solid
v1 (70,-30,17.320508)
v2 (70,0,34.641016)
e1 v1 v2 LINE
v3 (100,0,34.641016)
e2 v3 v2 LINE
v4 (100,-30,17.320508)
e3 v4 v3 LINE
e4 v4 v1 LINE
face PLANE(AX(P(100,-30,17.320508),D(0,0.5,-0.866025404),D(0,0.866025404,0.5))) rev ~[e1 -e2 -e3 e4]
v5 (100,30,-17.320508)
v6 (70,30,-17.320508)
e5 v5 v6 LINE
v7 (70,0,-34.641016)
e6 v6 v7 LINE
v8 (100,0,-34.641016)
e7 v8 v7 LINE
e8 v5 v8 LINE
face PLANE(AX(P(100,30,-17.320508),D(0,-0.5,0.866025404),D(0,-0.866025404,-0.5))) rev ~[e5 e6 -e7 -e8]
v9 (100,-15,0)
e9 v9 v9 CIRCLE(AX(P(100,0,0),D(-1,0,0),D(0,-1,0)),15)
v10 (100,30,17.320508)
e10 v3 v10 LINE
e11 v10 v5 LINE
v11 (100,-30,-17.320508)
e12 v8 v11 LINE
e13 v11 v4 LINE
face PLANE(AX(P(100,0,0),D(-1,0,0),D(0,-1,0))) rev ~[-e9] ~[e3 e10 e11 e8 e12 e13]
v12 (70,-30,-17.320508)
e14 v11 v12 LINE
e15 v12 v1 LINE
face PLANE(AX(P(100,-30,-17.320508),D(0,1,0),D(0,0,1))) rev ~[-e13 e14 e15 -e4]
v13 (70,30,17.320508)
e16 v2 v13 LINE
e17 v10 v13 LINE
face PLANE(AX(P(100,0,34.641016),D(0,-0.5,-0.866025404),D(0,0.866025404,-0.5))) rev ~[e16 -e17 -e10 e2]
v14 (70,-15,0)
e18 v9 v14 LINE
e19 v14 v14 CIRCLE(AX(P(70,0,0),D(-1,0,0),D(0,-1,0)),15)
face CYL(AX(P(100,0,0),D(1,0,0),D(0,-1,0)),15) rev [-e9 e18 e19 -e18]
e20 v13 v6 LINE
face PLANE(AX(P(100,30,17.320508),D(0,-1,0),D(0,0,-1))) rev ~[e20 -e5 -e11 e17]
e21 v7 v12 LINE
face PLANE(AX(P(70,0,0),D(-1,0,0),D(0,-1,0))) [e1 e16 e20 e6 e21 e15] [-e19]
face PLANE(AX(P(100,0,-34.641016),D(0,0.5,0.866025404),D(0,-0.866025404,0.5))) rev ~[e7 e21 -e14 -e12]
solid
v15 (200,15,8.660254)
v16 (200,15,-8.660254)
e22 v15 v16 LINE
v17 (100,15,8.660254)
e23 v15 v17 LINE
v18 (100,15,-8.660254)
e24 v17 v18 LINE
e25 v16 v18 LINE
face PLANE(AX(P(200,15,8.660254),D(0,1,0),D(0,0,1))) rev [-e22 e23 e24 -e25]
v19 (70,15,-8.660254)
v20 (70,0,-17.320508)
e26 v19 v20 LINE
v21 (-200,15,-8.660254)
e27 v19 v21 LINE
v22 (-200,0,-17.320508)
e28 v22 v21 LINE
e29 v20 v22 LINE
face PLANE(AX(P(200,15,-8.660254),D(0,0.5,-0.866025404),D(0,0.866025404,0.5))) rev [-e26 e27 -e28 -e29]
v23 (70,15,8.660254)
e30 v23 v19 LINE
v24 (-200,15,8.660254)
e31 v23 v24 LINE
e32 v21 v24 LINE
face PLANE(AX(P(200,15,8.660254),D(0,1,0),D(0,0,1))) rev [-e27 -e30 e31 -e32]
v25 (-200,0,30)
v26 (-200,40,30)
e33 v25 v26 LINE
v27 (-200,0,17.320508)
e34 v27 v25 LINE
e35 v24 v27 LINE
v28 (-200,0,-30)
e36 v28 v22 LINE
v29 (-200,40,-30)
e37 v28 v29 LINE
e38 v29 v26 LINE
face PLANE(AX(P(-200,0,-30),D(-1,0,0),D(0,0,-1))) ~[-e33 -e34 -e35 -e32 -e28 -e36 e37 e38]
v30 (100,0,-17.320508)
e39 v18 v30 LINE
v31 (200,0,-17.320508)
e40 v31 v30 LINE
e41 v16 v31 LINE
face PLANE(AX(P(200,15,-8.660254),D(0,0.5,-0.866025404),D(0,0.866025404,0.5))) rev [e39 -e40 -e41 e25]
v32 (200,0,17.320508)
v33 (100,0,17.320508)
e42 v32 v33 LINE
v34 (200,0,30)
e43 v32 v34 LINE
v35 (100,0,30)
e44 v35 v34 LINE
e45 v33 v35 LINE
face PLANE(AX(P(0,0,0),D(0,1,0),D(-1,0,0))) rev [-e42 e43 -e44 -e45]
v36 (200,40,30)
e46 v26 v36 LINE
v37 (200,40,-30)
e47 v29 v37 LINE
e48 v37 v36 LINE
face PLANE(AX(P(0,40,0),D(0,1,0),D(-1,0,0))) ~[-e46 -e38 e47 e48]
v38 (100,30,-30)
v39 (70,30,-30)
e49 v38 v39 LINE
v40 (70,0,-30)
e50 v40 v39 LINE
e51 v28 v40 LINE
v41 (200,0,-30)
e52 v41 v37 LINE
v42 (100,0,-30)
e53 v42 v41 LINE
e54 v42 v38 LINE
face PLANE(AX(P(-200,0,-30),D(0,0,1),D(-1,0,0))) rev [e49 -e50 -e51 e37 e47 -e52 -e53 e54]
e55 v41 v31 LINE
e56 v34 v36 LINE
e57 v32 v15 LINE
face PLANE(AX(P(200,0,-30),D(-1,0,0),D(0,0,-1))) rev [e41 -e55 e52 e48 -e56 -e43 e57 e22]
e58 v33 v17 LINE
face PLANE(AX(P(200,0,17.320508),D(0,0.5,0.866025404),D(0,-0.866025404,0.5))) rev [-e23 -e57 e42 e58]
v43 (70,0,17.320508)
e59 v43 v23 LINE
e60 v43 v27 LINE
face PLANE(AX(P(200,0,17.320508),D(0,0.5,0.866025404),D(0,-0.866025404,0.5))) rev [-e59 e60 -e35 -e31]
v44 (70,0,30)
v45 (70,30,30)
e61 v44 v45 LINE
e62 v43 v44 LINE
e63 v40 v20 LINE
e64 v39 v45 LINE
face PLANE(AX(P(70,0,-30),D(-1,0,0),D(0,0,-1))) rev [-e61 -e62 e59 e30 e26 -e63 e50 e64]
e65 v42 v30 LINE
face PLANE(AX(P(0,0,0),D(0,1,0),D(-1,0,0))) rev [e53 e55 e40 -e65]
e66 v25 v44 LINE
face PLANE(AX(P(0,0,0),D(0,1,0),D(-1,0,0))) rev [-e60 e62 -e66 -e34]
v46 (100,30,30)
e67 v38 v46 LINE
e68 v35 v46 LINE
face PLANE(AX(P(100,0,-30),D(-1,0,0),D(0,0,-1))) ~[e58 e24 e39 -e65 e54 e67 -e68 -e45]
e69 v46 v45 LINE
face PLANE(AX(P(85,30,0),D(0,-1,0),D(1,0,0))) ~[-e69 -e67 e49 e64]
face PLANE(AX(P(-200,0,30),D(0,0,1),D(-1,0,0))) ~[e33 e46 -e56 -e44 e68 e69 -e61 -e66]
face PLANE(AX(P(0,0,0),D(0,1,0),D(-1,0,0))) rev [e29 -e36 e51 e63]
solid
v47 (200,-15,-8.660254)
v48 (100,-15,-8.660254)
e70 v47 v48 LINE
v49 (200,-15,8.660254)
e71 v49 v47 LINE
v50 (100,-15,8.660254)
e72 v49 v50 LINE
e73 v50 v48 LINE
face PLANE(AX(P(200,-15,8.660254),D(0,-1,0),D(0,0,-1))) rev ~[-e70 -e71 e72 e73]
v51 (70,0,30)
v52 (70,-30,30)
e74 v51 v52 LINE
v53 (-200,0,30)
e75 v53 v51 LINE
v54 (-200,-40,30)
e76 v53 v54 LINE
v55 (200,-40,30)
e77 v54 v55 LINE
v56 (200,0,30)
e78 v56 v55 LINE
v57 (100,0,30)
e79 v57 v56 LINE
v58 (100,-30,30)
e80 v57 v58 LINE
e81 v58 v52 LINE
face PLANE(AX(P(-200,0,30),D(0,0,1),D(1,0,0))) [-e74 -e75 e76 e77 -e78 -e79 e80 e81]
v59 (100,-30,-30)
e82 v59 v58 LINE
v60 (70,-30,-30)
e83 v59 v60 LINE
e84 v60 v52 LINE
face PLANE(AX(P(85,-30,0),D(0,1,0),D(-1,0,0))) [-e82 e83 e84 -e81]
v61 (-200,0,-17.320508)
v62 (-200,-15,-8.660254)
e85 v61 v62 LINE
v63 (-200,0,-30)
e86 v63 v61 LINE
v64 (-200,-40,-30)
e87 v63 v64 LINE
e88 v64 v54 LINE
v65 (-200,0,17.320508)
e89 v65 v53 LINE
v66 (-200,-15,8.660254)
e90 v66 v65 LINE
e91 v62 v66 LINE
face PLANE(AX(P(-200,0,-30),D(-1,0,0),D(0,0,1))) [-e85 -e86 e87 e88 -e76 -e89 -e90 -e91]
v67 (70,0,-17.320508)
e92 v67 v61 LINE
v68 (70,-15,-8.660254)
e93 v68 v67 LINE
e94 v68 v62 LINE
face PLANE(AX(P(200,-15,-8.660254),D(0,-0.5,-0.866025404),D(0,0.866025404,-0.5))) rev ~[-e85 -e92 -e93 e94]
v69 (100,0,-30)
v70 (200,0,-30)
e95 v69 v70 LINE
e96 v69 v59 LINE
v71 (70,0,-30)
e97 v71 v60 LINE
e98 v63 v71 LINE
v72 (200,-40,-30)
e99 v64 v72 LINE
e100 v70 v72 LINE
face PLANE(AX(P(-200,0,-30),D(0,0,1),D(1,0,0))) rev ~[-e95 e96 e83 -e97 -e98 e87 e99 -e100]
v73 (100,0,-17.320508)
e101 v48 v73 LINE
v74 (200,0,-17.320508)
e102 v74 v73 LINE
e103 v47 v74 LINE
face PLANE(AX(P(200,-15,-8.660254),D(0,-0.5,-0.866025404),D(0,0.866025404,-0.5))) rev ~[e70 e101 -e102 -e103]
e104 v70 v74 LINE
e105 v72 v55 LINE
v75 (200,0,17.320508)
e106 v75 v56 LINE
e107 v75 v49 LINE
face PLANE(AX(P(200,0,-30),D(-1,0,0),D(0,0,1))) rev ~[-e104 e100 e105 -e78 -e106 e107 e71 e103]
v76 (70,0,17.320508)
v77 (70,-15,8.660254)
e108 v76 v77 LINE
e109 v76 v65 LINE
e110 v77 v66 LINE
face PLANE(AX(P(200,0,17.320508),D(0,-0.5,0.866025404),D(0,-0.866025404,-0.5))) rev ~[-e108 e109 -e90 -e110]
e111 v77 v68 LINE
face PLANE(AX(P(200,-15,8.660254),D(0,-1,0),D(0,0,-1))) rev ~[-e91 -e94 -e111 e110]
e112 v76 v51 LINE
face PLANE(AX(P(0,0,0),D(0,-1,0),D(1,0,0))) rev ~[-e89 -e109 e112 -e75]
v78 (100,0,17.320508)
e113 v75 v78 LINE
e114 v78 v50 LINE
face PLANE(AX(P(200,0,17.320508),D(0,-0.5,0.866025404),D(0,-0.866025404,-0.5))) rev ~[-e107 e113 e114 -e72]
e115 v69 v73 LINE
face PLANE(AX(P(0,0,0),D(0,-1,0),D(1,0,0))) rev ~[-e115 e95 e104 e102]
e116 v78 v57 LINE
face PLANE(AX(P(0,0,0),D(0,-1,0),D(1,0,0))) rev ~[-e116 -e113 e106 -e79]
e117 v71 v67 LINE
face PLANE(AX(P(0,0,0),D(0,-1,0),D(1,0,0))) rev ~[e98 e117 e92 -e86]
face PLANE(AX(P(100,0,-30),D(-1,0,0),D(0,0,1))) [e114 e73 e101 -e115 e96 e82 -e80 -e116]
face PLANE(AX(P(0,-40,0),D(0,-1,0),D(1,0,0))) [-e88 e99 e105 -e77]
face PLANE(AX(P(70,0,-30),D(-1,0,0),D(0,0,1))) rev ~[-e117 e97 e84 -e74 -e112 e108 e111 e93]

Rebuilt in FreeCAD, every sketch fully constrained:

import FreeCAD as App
import Part
import Sketcher
Q = App.Units.Quantity


def add_polygon(sketch, points):
    """Adds a closed chain of lines whose ends are joined by coincident constraints."""
    first, n = sketch.GeometryCount, len(points)
    for a, b in zip(points, points[1:] + points[:1]):
        sketch.addGeometry(Part.LineSegment(App.Vector(*a, 0), App.Vector(*b, 0)), False)
    for i in range(n):
        sketch.addConstraint(Sketcher.Constraint("Coincident", first + i, 2, first + (i + 1) % n, 1))

doc = App.newDocument("Part")
body = doc.addObject("PartDesign::Body", "Body")

# Sketch on XZ plane
sketch1 = body.newObject("Sketcher::SketchObject", "Sketch")
sketch1.AttachmentSupport = (doc.getObject("XZ_Plane"), [""])
sketch1.MapMode = "FlatFace"
add_polygon(sketch1, [(-200, 30), (-200, -30), (200, -30), (200, 30)])  # lines 0-3
sketch1.addConstraint([
    Sketcher.Constraint("Vertical", 0),
    Sketcher.Constraint("Horizontal", 1),
    Sketcher.Constraint("Vertical", 2),
    Sketcher.Constraint("Horizontal", 3),
    Sketcher.Constraint("Symmetric", 0, 2, 2, 2, -1, 1),
    Sketcher.Constraint("DistanceX", 1, 1, 1, 2, Q("400 mm")),
    Sketcher.Constraint("DistanceY", 0, 2, 0, 1, Q("60 mm")),
])
pad1 = body.newObject("PartDesign::Pad", "Pad")
pad1.Profile = sketch1
pad1.Length = 40

# Sketch on YZ plane
sketch2 = body.newObject("Sketcher::SketchObject", "Sketch001")
sketch2.AttachmentSupport = (doc.getObject("YZ_Plane"), [""])
sketch2.MapMode = "FlatFace"
sketch2.AttachmentOffset = App.Placement(App.Vector(0, 0, 200), App.Rotation())
add_polygon(sketch2, [(0, 17), (-15, 9), (-15, -9), (0, -17), (15, -9), (15, 9)])  # lines 0-5
sketch2.addConstraint([
    Sketcher.Constraint("Vertical", 1),
    Sketcher.Constraint("Vertical", 4),
    Sketcher.Constraint("Symmetric", 0, 2, 3, 2, -1, 1),
    Sketcher.Constraint("Symmetric", 2, 2, 5, 2, -1, 1),
    Sketcher.Constraint("PointOnObject", 2, 2, -2),
    Sketcher.Constraint("Parallel", 2, 5),
    Sketcher.Constraint("Horizontal", 1, 2, 3, 2),
    Sketcher.Constraint("Angle", 0, Q("-150 deg")),
    Sketcher.Constraint("DistanceX", 0, 2, -1, 1, Q("15 mm")),
    Sketcher.Constraint("DistanceY", 1, 2, 1, 1, Q("17.320508 mm")),
])
pocket1 = body.newObject("PartDesign::Pocket", "Pocket")
pocket1.Profile = sketch2
pocket1.Type = "ThroughAll"

# Sketch on XZ plane
sketch3 = body.newObject("Sketcher::SketchObject", "Sketch002")
sketch3.AttachmentSupport = (doc.getObject("XZ_Plane"), [""])
sketch3.MapMode = "FlatFace"
add_polygon(sketch3, [(100, 30), (100, -30), (70, -30), (70, 30)])  # lines 0-3
sketch3.addConstraint([
    Sketcher.Constraint("Vertical", 0),
    Sketcher.Constraint("Horizontal", 1),
    Sketcher.Constraint("Vertical", 2),
    Sketcher.Constraint("Horizontal", 3),
    Sketcher.Constraint("DistanceX", 1, 2, 1, 1, Q("30 mm")),
    Sketcher.Constraint("DistanceY", 0, 2, 0, 1, Q("60 mm")),
    Sketcher.Constraint("DistanceX", -1, 1, 0, 2, Q("100 mm")),
    Sketcher.Constraint("DistanceY", 0, 2, -1, 1, Q("30 mm")),
])
pocket2 = body.newObject("PartDesign::Pocket", "Pocket001")
pocket2.Profile = sketch3
pocket2.Length = 30
pocket2.Reversed = True
body2 = doc.addObject("PartDesign::Body", "Body001")

# Sketch on YZ plane
sketch4 = body2.newObject("Sketcher::SketchObject", "Sketch003")
sketch4.AttachmentSupport = (doc.getObject("YZ_Plane001"), [""])
sketch4.MapMode = "FlatFace"
sketch4.AttachmentOffset = App.Placement(App.Vector(0, 0, 100), App.Rotation())
add_polygon(sketch4, [(0, -35), (-30, -17), (-30, 17), (0, 35), (30, 17), (30, -17)])  # lines 0-5
sketch4.addGeometry(Part.Circle(App.Vector(0, 0, 0), App.Vector(0, 0, 1), 15), False)  # 6
sketch4.addConstraint([
    Sketcher.Constraint("Vertical", 1),
    Sketcher.Constraint("Vertical", 4),
    Sketcher.Constraint("Coincident", 6, 3, -1, 1),
    Sketcher.Constraint("Symmetric", 0, 2, 3, 2, -1, 1),
    Sketcher.Constraint("Symmetric", 2, 2, 5, 2, -1, 1),
    Sketcher.Constraint("PointOnObject", 2, 2, -2),
    Sketcher.Constraint("Parallel", 2, 5),
    Sketcher.Constraint("Horizontal", 1, 2, 3, 2),
    Sketcher.Constraint("Diameter", 6, Q("30 mm")),
    Sketcher.Constraint("Angle", 0, Q("150 deg")),
    Sketcher.Constraint("DistanceX", 0, 2, -1, 1, Q("30 mm")),
    Sketcher.Constraint("DistanceY", 1, 1, 1, 2, Q("34.641016 mm")),
])
pad2 = body2.newObject("PartDesign::Pad", "Pad001")
pad2.Profile = sketch4
pad2.Length = 30
pad2.Reversed = True
body3 = doc.addObject("PartDesign::Body", "Body002")
doc.recompute()

mirroring = doc.addObject("Part::Mirroring", "Mirroring")
mirroring.Source = body
mirroring.Base = App.Vector(0, 0, 0)
mirroring.Normal = App.Vector(0, -1, 0)
body3.BaseFeature = mirroring
doc.recompute()
mirroring.Visibility = False

doc.recompute()
